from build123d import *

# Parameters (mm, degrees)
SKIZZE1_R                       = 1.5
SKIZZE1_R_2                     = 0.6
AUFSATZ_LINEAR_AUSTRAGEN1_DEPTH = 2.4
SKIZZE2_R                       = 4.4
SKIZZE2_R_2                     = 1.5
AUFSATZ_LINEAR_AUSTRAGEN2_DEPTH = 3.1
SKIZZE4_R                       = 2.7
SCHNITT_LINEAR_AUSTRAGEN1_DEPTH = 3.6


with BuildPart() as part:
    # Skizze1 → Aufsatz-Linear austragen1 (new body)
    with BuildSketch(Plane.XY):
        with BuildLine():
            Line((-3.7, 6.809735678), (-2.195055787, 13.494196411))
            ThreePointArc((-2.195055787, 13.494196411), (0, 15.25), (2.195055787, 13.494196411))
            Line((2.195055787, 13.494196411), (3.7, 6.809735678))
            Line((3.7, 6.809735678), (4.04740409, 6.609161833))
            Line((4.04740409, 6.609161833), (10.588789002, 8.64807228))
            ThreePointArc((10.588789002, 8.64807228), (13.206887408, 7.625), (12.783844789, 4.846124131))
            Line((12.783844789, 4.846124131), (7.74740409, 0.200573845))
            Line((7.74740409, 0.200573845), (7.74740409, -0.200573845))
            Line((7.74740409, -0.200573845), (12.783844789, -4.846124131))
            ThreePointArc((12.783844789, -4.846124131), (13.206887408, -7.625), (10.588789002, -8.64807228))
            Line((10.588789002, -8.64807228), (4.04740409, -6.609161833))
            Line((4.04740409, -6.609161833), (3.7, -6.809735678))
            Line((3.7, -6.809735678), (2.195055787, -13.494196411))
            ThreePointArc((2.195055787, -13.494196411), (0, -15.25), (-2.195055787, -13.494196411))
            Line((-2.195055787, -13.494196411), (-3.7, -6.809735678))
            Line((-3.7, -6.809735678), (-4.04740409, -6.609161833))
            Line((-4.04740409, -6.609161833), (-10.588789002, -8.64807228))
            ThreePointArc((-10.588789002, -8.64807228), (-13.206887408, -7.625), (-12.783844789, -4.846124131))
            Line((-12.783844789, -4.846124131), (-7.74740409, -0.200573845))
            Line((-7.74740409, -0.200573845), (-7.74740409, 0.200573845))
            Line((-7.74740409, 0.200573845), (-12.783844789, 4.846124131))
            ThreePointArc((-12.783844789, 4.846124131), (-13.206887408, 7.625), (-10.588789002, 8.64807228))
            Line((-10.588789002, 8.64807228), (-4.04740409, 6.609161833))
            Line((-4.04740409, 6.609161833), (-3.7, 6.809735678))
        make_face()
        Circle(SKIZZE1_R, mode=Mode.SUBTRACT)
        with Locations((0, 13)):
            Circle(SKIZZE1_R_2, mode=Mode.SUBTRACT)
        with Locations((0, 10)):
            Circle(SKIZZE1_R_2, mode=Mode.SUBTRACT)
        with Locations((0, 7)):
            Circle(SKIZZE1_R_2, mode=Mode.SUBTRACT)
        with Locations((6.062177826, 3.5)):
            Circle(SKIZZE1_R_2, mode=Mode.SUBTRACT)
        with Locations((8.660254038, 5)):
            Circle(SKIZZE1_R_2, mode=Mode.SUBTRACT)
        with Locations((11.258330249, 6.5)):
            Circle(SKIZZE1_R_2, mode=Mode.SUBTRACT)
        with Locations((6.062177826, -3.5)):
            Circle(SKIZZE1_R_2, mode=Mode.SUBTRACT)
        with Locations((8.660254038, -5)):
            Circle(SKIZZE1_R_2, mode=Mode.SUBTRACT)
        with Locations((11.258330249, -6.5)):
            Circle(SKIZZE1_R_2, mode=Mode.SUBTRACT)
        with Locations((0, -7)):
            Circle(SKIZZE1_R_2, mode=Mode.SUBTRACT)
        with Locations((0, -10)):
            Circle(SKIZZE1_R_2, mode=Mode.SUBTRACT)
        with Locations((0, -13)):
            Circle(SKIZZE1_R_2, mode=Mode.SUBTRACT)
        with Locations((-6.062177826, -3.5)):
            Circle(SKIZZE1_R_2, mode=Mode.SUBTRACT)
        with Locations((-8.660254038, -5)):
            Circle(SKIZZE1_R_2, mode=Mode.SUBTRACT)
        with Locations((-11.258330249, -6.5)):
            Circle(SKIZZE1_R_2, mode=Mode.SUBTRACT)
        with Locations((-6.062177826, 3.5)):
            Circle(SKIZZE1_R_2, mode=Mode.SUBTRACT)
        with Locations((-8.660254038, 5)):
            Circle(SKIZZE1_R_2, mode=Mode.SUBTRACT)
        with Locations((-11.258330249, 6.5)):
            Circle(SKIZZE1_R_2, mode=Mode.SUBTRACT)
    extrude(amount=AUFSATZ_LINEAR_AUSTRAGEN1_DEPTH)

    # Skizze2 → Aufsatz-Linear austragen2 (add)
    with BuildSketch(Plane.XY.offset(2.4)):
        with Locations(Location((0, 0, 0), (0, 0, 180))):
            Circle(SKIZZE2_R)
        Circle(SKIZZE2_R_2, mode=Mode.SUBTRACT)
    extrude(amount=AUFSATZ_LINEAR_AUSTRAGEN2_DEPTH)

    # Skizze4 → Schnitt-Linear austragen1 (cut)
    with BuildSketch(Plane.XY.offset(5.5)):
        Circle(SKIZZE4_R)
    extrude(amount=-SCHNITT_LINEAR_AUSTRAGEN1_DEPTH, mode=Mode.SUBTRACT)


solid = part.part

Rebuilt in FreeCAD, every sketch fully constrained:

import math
import FreeCAD as App
import Part
import Sketcher
from FreeCAD import Vector
Q = App.Units.Quantity

doc = App.newDocument("Part")
params = doc.addObject("Spreadsheet::Sheet", "Params")
for row, (alias, value) in enumerate([
    ("sketch1_diameter", "3 mm"),
    ("sketch1_diameter2", "1.2 mm"),
    ("sketch1_radius", "2.25 mm"),
    ("pad1_length", "2.4 mm"),
    ("sketch2_diameter", "3 mm"),
    ("sketch2_diameter2", "8.8 mm"),
    ("pad2_length", "3.1 mm"),
    ("sketch3_diameter", "5.4 mm"),
    ("pocket1_length", "3.6 mm"),
], start=1):
    params.set(f"A{row}", alias)
    params.set(f"B{row}", "=" + value)
    params.setAlias(f"B{row}", alias)

body = doc.addObject("PartDesign::Body", "Body")

# Sketch on XY plane
sketch1 = body.newObject("Sketcher::SketchObject", "Sketch")
sketch1.AttachmentSupport = (doc.getObject("XY_Plane"), [""])
sketch1.MapMode = "FlatFace"
sketch1.addGeometry(Part.LineSegment(Vector(-2.2, 13.49, 0), Vector(-3.7, 6.81, 0)), False)
sketch1.addGeometry(Part.LineSegment(Vector(-3.7, 6.81, 0), Vector(-4.05, 6.61, 0)), False)
sketch1.addGeometry(Part.LineSegment(Vector(-4.05, 6.61, 0), Vector(-10.59, 8.65, 0)), False)
sketch1.addGeometry(Part.ArcOfCircle(Part.Circle(Vector(-11.26, 6.5, 0), Vector(0, 0, 1), 2.25), math.radians(73), math.radians(227)), False)
sketch1.addGeometry(Part.LineSegment(Vector(-12.78, 4.85, 0), Vector(-7.75, 0.2, 0)), False)
sketch1.addGeometry(Part.LineSegment(Vector(-7.75, 0.2, 0), Vector(-7.75, -0.2, 0)), False)
sketch1.addGeometry(Part.LineSegment(Vector(-7.75, -0.2, 0), Vector(-12.78, -4.85, 0)), False)
sketch1.addGeometry(Part.ArcOfCircle(Part.Circle(Vector(-11.26, -6.5, 0), Vector(0, 0, 1), 2.25), math.radians(133), math.radians(287)), False)
sketch1.addGeometry(Part.LineSegment(Vector(-10.59, -8.65, 0), Vector(-4.05, -6.61, 0)), False)
sketch1.addGeometry(Part.LineSegment(Vector(-4.05, -6.61, 0), Vector(-3.7, -6.81, 0)), False)
sketch1.addGeometry(Part.LineSegment(Vector(-3.7, -6.81, 0), Vector(-2.2, -13.49, 0)), False)
sketch1.addGeometry(Part.ArcOfCircle(Part.Circle(Vector(0, -13, 0), Vector(0, 0, 1), 2.25), math.radians(-167), math.radians(-13)), False)
sketch1.addGeometry(Part.LineSegment(Vector(2.2, -13.49, 0), Vector(3.7, -6.81, 0)), False)
sketch1.addGeometry(Part.LineSegment(Vector(3.7, -6.81, 0), Vector(4.05, -6.61, 0)), False)
sketch1.addGeometry(Part.LineSegment(Vector(4.05, -6.61, 0), Vector(10.59, -8.65, 0)), False)
sketch1.addGeometry(Part.ArcOfCircle(Part.Circle(Vector(11.26, -6.5, 0), Vector(0, 0, 1), 2.25), math.radians(-107), math.radians(47)), False)
sketch1.addGeometry(Part.LineSegment(Vector(12.78, -4.85, 0), Vector(7.75, -0.2, 0)), False)
sketch1.addGeometry(Part.LineSegment(Vector(7.75, -0.2, 0), Vector(7.75, 0.2, 0)), False)
sketch1.addGeometry(Part.LineSegment(Vector(7.75, 0.2, 0), Vector(12.78, 4.85, 0)), False)
sketch1.addGeometry(Part.ArcOfCircle(Part.Circle(Vector(11.26, 6.5, 0), Vector(0, 0, 1), 2.25), math.radians(-47), math.radians(107)), False)
sketch1.addGeometry(Part.LineSegment(Vector(10.59, 8.65, 0), Vector(4.05, 6.61, 0)), False)
sketch1.addGeometry(Part.LineSegment(Vector(4.05, 6.61, 0), Vector(3.7, 6.81, 0)), False)
sketch1.addGeometry(Part.LineSegment(Vector(3.7, 6.81, 0), Vector(2.2, 13.49, 0)), False)
sketch1.addGeometry(Part.ArcOfCircle(Part.Circle(Vector(0, 13, 0), Vector(0, 0, 1), 2.25), math.radians(13), math.radians(167)), False)
sketch1.addGeometry(Part.Circle(Vector(11.26, -6.5, 0), Vector(0, 0, 1), 0.6), False)
sketch1.addGeometry(Part.Circle(Vector(8.66, -5, 0), Vector(0, 0, 1), 0.6), False)
sketch1.addGeometry(Part.Circle(Vector(6.06, -3.5, 0), Vector(0, 0, 1), 0.6), False)
sketch1.addGeometry(Part.Circle(Vector(0, -13, 0), Vector(0, 0, 1), 0.6), False)
sketch1.addGeometry(Part.Circle(Vector(0, -10, 0), Vector(0, 0, 1), 0.6), False)
sketch1.addGeometry(Part.Circle(Vector(0, -7, 0), Vector(0, 0, 1), 0.6), False)
sketch1.addGeometry(Part.Circle(Vector(-6.06, -3.5, 0), Vector(0, 0, 1), 0.6), False)
sketch1.addGeometry(Part.Circle(Vector(-8.66, -5, 0), Vector(0, 0, 1), 0.6), False)
sketch1.addGeometry(Part.Circle(Vector(-11.26, -6.5, 0), Vector(0, 0, 1), 0.6), False)
sketch1.addGeometry(Part.Circle(Vector(11.26, 6.5, 0), Vector(0, 0, 1), 0.6), False)
sketch1.addGeometry(Part.Circle(Vector(8.66, 5, 0), Vector(0, 0, 1), 0.6), False)
sketch1.addGeometry(Part.Circle(Vector(6.06, 3.5, 0), Vector(0, 0, 1), 0.6), False)
sketch1.addGeometry(Part.Circle(Vector(0, 0, 0), Vector(0, 0, 1), 1.5), False)
sketch1.addGeometry(Part.Circle(Vector(-6.06, 3.5, 0), Vector(0, 0, 1), 0.6), False)
sketch1.addGeometry(Part.Circle(Vector(-8.66, 5, 0), Vector(0, 0, 1), 0.6), False)
sketch1.addGeometry(Part.Circle(Vector(-11.26, 6.5, 0), Vector(0, 0, 1), 0.6), False)
sketch1.addGeometry(Part.Circle(Vector(0, 7, 0), Vector(0, 0, 1), 0.6), False)
sketch1.addGeometry(Part.Circle(Vector(0, 10, 0), Vector(0, 0, 1), 0.6), False)
sketch1.addGeometry(Part.Circle(Vector(0, 13, 0), Vector(0, 0, 1), 0.6), False)
sketch1.addConstraint(Sketcher.Constraint("Coincident", 0, 2, 1, 1))
sketch1.addConstraint(Sketcher.Constraint("Coincident", 1, 2, 2, 1))
sketch1.addConstraint(Sketcher.Constraint("Tangent", 2, 2, 3, 1))
sketch1.addConstraint(Sketcher.Constraint("Tangent", 3, 2, 4, 1))
sketch1.addConstraint(Sketcher.Constraint("Coincident", 4, 2, 5, 1))
sketch1.addConstraint(Sketcher.Constraint("Coincident", 5, 2, 6, 1))
sketch1.addConstraint(Sketcher.Constraint("Tangent", 6, 2, 7, 1))
sketch1.addConstraint(Sketcher.Constraint("Tangent", 7, 2, 8, 1))
sketch1.addConstraint(Sketcher.Constraint("Coincident", 8, 2, 9, 1))
sketch1.addConstraint(Sketcher.Constraint("Coincident", 9, 2, 10, 1))
sketch1.addConstraint(Sketcher.Constraint("Tangent", 10, 2, 11, 1))
sketch1.addConstraint(Sketcher.Constraint("Tangent", 11, 2, 12, 1))
sketch1.addConstraint(Sketcher.Constraint("Coincident", 12, 2, 13, 1))
sketch1.addConstraint(Sketcher.Constraint("Coincident", 13, 2, 14, 1))
sketch1.addConstraint(Sketcher.Constraint("Tangent", 14, 2, 15, 1))
sketch1.addConstraint(Sketcher.Constraint("Tangent", 15, 2, 16, 1))
sketch1.addConstraint(Sketcher.Constraint("Coincident", 16, 2, 17, 1))
sketch1.addConstraint(Sketcher.Constraint("Coincident", 17, 2, 18, 1))
sketch1.addConstraint(Sketcher.Constraint("Tangent", 18, 2, 19, 1))
sketch1.addConstraint(Sketcher.Constraint("Tangent", 19, 2, 20, 1))
sketch1.addConstraint(Sketcher.Constraint("Coincident", 20, 2, 21, 1))
sketch1.addConstraint(Sketcher.Constraint("Coincident", 21, 2, 22, 1))
sketch1.addConstraint(Sketcher.Constraint("Tangent", 22, 2, 23, 1))
sketch1.addConstraint(Sketcher.Constraint("Tangent", 23, 2, 0, 1))
sketch1.addConstraint(Sketcher.Constraint("Vertical", 5))
sketch1.addConstraint(Sketcher.Constraint("Vertical", 17))
sketch1.addConstraint(Sketcher.Constraint("Coincident", 36, 3, -1, 1))
sketch1.addConstraint(Sketcher.Constraint("Coincident", 24, 3, 15, 3))
sketch1.addConstraint(Sketcher.Constraint("Coincident", 27, 3, 11, 3))
sketch1.addConstraint(Sketcher.Constraint("Coincident", 32, 3, 7, 3))
sketch1.addConstraint(Sketcher.Constraint("Coincident", 33, 3, 19, 3))
sketch1.addConstraint(Sketcher.Constraint("Coincident", 39, 3, 3, 3))
sketch1.addConstraint(Sketcher.Constraint("Coincident", 42, 3, 23, 3))
sketch1.addConstraint(Sketcher.Constraint("Equal", 3, 7))
sketch1.addConstraint(Sketcher.Constraint("Equal", 7, 11))
sketch1.addConstraint(Sketcher.Constraint("Equal", 11, 15))
sketch1.addConstraint(Sketcher.Constraint("Equal", 15, 19))
sketch1.addConstraint(Sketcher.Constraint("Equal", 19, 23))
sketch1.addConstraint(Sketcher.Constraint("Equal", 24, 25))
sketch1.addConstraint(Sketcher.Constraint("Equal", 25, 26))
sketch1.addConstraint(Sketcher.Constraint("Equal", 26, 27))
sketch1.addConstraint(Sketcher.Constraint("Equal", 27, 28))
sketch1.addConstraint(Sketcher.Constraint("Equal", 28, 29))
sketch1.addConstraint(Sketcher.Constraint("Equal", 29, 30))
sketch1.addConstraint(Sketcher.Constraint("Equal", 30, 31))
sketch1.addConstraint(Sketcher.Constraint("Equal", 31, 32))
sketch1.addConstraint(Sketcher.Constraint("Equal", 32, 33))
sketch1.addConstraint(Sketcher.Constraint("Equal", 33, 34))
sketch1.addConstraint(Sketcher.Constraint("Equal", 34, 35))
sketch1.addConstraint(Sketcher.Constraint("Equal", 35, 37))
sketch1.addConstraint(Sketcher.Constraint("Equal", 37, 38))
sketch1.addConstraint(Sketcher.Constraint("Equal", 38, 39))
sketch1.addConstraint(Sketcher.Constraint("Equal", 39, 40))
sketch1.addConstraint(Sketcher.Constraint("Equal", 40, 41))
sketch1.addConstraint(Sketcher.Constraint("Equal", 41, 42))
sketch1.addConstraint(Sketcher.Constraint("Symmetric", 3, 3, 15, 3, -1, 1))
sketch1.addConstraint(Sketcher.Constraint("Symmetric", 7, 3, 19, 3, -1, 1))
sketch1.addConstraint(Sketcher.Constraint("Symmetric", 11, 3, 23, 3, -1, 1))
sketch1.addConstraint(Sketcher.Constraint("Symmetric", 31, 3, 34, 3, -1, 1))
sketch1.addConstraint(Sketcher.Constraint("Symmetric", 30, 3, 35, 3, -1, 1))
sketch1.addConstraint(Sketcher.Constraint("Symmetric", 26, 3, 37, 3, -1, 1))
sketch1.addConstraint(Sketcher.Constraint("Symmetric", 25, 3, 38, 3, -1, 1))
sketch1.addConstraint(Sketcher.Constraint("Symmetric", 29, 3, 40, 3, -1, 1))
sketch1.addConstraint(Sketcher.Constraint("Symmetric", 28, 3, 41, 3, -1, 1))
sketch1.addConstraint(Sketcher.Constraint("Symmetric", 0, 2, 12, 2, -1, 1))
sketch1.addConstraint(Sketcher.Constraint("Symmetric", 1, 2, 13, 2, -1, 1))
sketch1.addConstraint(Sketcher.Constraint("Symmetric", 4, 2, 16, 2, -1, 1))
sketch1.addConstraint(Sketcher.Constraint("Symmetric", 8, 2, 20, 2, -1, 1))
sketch1.addConstraint(Sketcher.Constraint("Symmetric", 9, 2, 21, 2, -1, 1))
sketch1.addConstraint(Sketcher.Constraint("Symmetric", 7, 3, 15, 3, -2))
sketch1.addConstraint(Sketcher.Constraint("Symmetric", 26, 3, 30, 3, -2))
sketch1.addConstraint(Sketcher.Constraint("Symmetric", 25, 3, 31, 3, -2))
sketch1.addConstraint(Sketcher.Constraint("Symmetric", 10, 2, 11, 2, -2))
sketch1.addConstraint(Sketcher.Constraint("Symmetric", 8, 2, 13, 2, -2))
sketch1.addConstraint(Sketcher.Constraint("PointOnObject", 28, 3, -2))
sketch1.addConstraint(Sketcher.Constraint("PointOnObject", 29, 3, -2))
sketch1.addConstraint(Sketcher.Constraint("Parallel", 6, 18))
sketch1.addConstraint(Sketcher.Constraint("Horizontal", 9, 2, 12, 2))
sketch1.addConstraint(Sketcher.Constraint("Horizontal", 6, 2, 15, 2))
sketch1.addConstraint(Sketcher.Constraint("Equal", 0, 2))
sketch1.addConstraint(Sketcher.Constraint("Equal", 2, 4))
sketch1.addConstraint(Sketcher.Constraint("Diameter", 36, 3.0))
sketch1.addConstraint(Sketcher.Constraint("Diameter", 24, 1.2))
sketch1.addConstraint(Sketcher.Constraint("Angle", 1, Q("-150 deg")))
sketch1.addConstraint(Sketcher.Constraint("Radius", 3, 2.25))
sketch1.addConstraint(Sketcher.Constraint("DistanceY", 11, 3, -1, 1, 13.0))
sketch1.addConstraint(Sketcher.Constraint("DistanceY", 25, 3, -1, 1, 5.0))
sketch1.addConstraint(Sketcher.Constraint("DistanceY", 28, 3, -1, 1, 10.0))
sketch1.addConstraint(Sketcher.Constraint("DistanceY", 29, 3, -1, 1, 7.0))
sketch1.addConstraint(Sketcher.Constraint("DistanceY", 7, 3, 3, 3, 13.0))
sketch1.addConstraint(Sketcher.Constraint("DistanceY", 15, 3, 26, 3, 3.0))
sketch1.addConstraint(Sketcher.Constraint("DistanceX", 0, 2, -1, 1, 3.7))
sketch1.addConstraint(Sketcher.Constraint("Distance", 0, 6.851779))
sketch1.addConstraint(Sketcher.Constraint("DistanceY", 5, 2, 5, 1, 0.401148))
sketch1.addConstraint(Sketcher.Constraint("DistanceX", 3, 3, -1, 1, 11.25833))
sketch1.addConstraint(Sketcher.Constraint("DistanceX", 38, 3, 1, 2, 4.61285))
sketch1.addConstraint(Sketcher.Constraint("DistanceX", 2, 2, 37, 3, 4.526611))
sketch1.setExpression("Constraints[81]", "Params.sketch1_diameter")
sketch1.setExpression("Constraints[82]", "Params.sketch1_diameter2")
sketch1.setExpression("Constraints[84]", "Params.sketch1_radius")
pad1 = body.newObject("PartDesign::Pad", "Pad")
pad1.Profile = sketch1
pad1.setExpression("Length", "Params.pad1_length")

# Sketch on XY plane
sketch2 = body.newObject("Sketcher::SketchObject", "Sketch001")
sketch2.AttachmentSupport = (doc.getObject("XY_Plane"), [""])
sketch2.MapMode = "FlatFace"
sketch2.AttachmentOffset = App.Placement(Vector(0, 0, 2.4), App.Rotation())
sketch2.addGeometry(Part.Circle(Vector(0, 0, 0), Vector(0, 0, 1), 4.4), False)
sketch2.addGeometry(Part.Circle(Vector(0, 0, 0), Vector(0, 0, 1), 1.5), False)
sketch2.addConstraint(Sketcher.Constraint("Coincident", 0, 3, -1, 1))
sketch2.addConstraint(Sketcher.Constraint("Coincident", 1, 3, -1, 1))
sketch2.addConstraint(Sketcher.Constraint("Diameter", 1, 3.0))
sketch2.addConstraint(Sketcher.Constraint("Diameter", 0, 8.8))
sketch2.setExpression("Constraints[2]", "Params.sketch2_diameter")
sketch2.setExpression("Constraints[3]", "Params.sketch2_diameter2")
pad2 = body.newObject("PartDesign::Pad", "Pad001")
pad2.Profile = sketch2
pad2.setExpression("Length", "Params.pad2_length")

# Sketch on XY plane
sketch3 = body.newObject("Sketcher::SketchObject", "Sketch002")
sketch3.AttachmentSupport = (doc.getObject("XY_Plane"), [""])
sketch3.MapMode = "FlatFace"
sketch3.AttachmentOffset = App.Placement(Vector(0, 0, 5.5), App.Rotation())
sketch3.addGeometry(Part.Circle(Vector(0, 0, 0), Vector(0, 0, 1), 2.7), False)
sketch3.addConstraint(Sketcher.Constraint("Coincident", 0, 3, -1, 1))
sketch3.addConstraint(Sketcher.Constraint("Diameter", 0, 5.4))
sketch3.setExpression("Constraints[1]", "Params.sketch3_diameter")
pocket1 = body.newObject("PartDesign::Pocket", "Pocket")
pocket1.Profile = sketch3
pocket1.setExpression("Length", "Params.pocket1_length")

doc.recompute()
